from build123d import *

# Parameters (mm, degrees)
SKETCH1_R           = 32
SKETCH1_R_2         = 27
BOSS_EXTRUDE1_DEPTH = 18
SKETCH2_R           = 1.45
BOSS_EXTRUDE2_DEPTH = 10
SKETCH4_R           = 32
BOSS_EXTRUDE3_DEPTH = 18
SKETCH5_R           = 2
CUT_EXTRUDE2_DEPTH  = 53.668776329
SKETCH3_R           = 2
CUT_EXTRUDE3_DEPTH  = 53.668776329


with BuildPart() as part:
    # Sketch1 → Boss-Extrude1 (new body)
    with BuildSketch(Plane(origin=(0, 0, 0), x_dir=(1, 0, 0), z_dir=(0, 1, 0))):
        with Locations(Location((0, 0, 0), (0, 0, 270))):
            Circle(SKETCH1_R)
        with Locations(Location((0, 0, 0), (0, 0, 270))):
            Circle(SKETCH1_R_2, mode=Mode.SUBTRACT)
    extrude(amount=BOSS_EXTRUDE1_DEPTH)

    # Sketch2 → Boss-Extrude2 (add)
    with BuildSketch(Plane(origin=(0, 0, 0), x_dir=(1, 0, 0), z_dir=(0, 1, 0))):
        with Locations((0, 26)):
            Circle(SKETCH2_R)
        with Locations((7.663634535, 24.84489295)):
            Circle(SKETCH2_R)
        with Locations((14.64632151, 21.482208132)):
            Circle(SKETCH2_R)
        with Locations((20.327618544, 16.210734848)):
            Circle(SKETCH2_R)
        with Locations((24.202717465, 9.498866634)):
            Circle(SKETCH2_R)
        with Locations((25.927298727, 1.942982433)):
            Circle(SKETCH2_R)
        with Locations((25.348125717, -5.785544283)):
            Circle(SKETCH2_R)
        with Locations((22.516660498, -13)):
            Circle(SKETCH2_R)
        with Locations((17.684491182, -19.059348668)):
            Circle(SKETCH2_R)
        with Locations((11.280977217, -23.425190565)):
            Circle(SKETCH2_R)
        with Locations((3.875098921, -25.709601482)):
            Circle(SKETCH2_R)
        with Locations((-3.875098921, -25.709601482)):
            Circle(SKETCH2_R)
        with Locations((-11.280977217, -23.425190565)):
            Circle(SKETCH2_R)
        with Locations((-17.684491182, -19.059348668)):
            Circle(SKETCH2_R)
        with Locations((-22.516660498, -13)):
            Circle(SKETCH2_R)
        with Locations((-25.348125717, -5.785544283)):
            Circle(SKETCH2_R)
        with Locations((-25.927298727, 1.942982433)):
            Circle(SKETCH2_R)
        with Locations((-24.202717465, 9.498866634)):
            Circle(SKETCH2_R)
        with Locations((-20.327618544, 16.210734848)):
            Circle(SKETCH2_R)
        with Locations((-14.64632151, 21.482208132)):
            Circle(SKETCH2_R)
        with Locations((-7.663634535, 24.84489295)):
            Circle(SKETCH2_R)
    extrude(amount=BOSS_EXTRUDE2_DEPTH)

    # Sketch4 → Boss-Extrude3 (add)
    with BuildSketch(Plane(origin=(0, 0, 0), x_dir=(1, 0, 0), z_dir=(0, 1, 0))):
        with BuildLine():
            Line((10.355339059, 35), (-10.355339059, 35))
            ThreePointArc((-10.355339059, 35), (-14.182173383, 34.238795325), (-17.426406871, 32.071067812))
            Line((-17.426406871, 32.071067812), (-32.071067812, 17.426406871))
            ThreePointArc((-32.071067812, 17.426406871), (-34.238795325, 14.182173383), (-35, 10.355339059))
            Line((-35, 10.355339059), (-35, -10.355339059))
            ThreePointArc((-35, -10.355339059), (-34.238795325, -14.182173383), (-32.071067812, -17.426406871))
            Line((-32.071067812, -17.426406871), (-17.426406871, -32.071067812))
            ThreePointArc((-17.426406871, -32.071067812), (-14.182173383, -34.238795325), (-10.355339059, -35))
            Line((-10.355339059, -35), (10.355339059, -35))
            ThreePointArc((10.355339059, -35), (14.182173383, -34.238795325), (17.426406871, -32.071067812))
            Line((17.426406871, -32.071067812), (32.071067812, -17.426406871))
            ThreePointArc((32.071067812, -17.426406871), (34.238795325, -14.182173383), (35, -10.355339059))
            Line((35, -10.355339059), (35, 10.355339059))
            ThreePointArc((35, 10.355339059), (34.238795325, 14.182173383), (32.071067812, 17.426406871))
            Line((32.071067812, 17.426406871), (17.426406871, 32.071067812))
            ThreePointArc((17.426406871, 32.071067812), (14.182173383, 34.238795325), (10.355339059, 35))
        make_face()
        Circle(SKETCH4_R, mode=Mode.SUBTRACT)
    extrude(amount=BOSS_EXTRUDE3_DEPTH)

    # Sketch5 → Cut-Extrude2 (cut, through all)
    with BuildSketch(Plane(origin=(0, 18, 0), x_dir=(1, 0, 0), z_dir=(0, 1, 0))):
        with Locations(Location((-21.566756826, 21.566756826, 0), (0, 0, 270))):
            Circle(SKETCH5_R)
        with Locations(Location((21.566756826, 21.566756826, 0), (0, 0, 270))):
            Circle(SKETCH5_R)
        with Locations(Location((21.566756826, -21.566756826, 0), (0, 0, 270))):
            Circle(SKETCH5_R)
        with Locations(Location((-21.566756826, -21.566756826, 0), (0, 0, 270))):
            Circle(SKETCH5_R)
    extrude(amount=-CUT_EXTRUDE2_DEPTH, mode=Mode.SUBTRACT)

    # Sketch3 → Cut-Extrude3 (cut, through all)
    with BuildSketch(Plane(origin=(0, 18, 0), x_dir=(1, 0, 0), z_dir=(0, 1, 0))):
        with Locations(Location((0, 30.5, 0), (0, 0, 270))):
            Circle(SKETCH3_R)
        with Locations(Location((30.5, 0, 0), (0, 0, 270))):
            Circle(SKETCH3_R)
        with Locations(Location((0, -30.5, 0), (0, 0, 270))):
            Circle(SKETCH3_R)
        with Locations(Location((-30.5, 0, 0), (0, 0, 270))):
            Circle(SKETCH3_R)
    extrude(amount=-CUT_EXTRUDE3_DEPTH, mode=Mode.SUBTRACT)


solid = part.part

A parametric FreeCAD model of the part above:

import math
import FreeCAD as App
import Part
import Sketcher

V = App.Vector

doc = App.newDocument("Part")
body = doc.addObject("PartDesign::Body", "Body")

# Sketch on XZ plane
sketch1 = body.newObject("Sketcher::SketchObject", "Sketch")
sketch1.AttachmentSupport = (doc.getObject("XZ_Plane"), [""])
sketch1.MapMode = "FlatFace"
sketch1.addGeometry([
    Part.Circle(V(0, 0, 0), V(0, 0, 1), 32),
    Part.Circle(V(0, 0, 0), V(0, 0, 1), 27),
], False)
sketch1.addConstraint([
    Sketcher.Constraint("Coincident", 0, 3, -1, 1),
    Sketcher.Constraint("Coincident", 1, 3, -1, 1),
    Sketcher.Constraint("Diameter", 0, 64.0),
    Sketcher.Constraint("Diameter", 1, 54.0),
])
pad1 = body.newObject("PartDesign::Pad", "Pad")
pad1.Profile = sketch1
pad1.Length = 18
pad1.Reversed = True

# Sketch on XZ plane
sketch2 = body.newObject("Sketcher::SketchObject", "Sketch001")
sketch2.AttachmentSupport = (doc.getObject("XZ_Plane"), [""])
sketch2.MapMode = "FlatFace"
sketch2.addGeometry([
    Part.Circle(V(0, -26, 0), V(0, 0, 1), 1.4),  # 0
    Part.Circle(V(7.7, -24.8, 0), V(0, 0, 1), 1.4),  # 1
    Part.Circle(V(14.6, -21.5, 0), V(0, 0, 1), 1.4),  # 2
    Part.Circle(V(20.3, -16.2, 0), V(0, 0, 1), 1.4),  # 3
    Part.Circle(V(24.2, -9.5, 0), V(0, 0, 1), 1.4),  # 4
    Part.Circle(V(25.9, -1.9, 0), V(0, 0, 1), 1.4),  # 5
    Part.Circle(V(25.3, 5.8, 0), V(0, 0, 1), 1.4),  # 6
    Part.Circle(V(22.5, 13, 0), V(0, 0, 1), 1.4),  # 7
    Part.Circle(V(17.7, 19.1, 0), V(0, 0, 1), 1.4),  # 8
    Part.Circle(V(11.3, 23.4, 0), V(0, 0, 1), 1.4),  # 9
    Part.Circle(V(3.9, 25.7, 0), V(0, 0, 1), 1.4),  # 10
    Part.Circle(V(-3.9, 25.7, 0), V(0, 0, 1), 1.4),  # 11
    Part.Circle(V(-11.3, 23.4, 0), V(0, 0, 1), 1.4),  # 12
    Part.Circle(V(-17.7, 19.1, 0), V(0, 0, 1), 1.4),  # 13
    Part.Circle(V(-22.5, 13, 0), V(0, 0, 1), 1.4),  # 14
    Part.Circle(V(-25.3, 5.8, 0), V(0, 0, 1), 1.4),  # 15
    Part.Circle(V(-25.9, -1.9, 0), V(0, 0, 1), 1.4),  # 16
    Part.Circle(V(-24.2, -9.5, 0), V(0, 0, 1), 1.4),  # 17
    Part.Circle(V(-20.3, -16.2, 0), V(0, 0, 1), 1.4),  # 18
    Part.Circle(V(-14.6, -21.5, 0), V(0, 0, 1), 1.4),  # 19
    Part.Circle(V(-7.7, -24.8, 0), V(0, 0, 1), 1.4),  # 20
], False)
sketch2.addConstraint([
    Sketcher.Constraint("Equal", 0, 1),
    Sketcher.Constraint("Equal", 1, 2),
    Sketcher.Constraint("Equal", 2, 3),
    Sketcher.Constraint("Equal", 3, 4),
    Sketcher.Constraint("Equal", 4, 5),
    Sketcher.Constraint("Equal", 5, 6),
    Sketcher.Constraint("Equal", 6, 7),
    Sketcher.Constraint("Equal", 7, 8),
    Sketcher.Constraint("Equal", 8, 9),
    Sketcher.Constraint("Equal", 9, 10),
    Sketcher.Constraint("Equal", 10, 11),
    Sketcher.Constraint("Equal", 11, 12),
    Sketcher.Constraint("Equal", 12, 13),
    Sketcher.Constraint("Equal", 13, 14),
    Sketcher.Constraint("Equal", 14, 15),
    Sketcher.Constraint("Equal", 15, 16),
    Sketcher.Constraint("Equal", 16, 17),
    Sketcher.Constraint("Equal", 17, 18),
    Sketcher.Constraint("Equal", 18, 19),
    Sketcher.Constraint("Equal", 19, 20),
    Sketcher.Constraint("Symmetric", 10, 3, 11, 3, -2),
    Sketcher.Constraint("Symmetric", 9, 3, 12, 3, -2),
    Sketcher.Constraint("Symmetric", 8, 3, 13, 3, -2),
    Sketcher.Constraint("Symmetric", 7, 3, 14, 3, -2),
    Sketcher.Constraint("Symmetric", 6, 3, 15, 3, -2),
    Sketcher.Constraint("Symmetric", 5, 3, 16, 3, -2),
    Sketcher.Constraint("Symmetric", 4, 3, 17, 3, -2),
    Sketcher.Constraint("Symmetric", 3, 3, 18, 3, -2),
    Sketcher.Constraint("Symmetric", 2, 3, 19, 3, -2),
    Sketcher.Constraint("Symmetric", 1, 3, 20, 3, -2),
    Sketcher.Constraint("PointOnObject", 0, 3, -2),
    Sketcher.Constraint("Diameter", 0, 2.9),
    Sketcher.Constraint("DistanceY", 0, 3, -1, 1, 26.0),
    Sketcher.Constraint("DistanceY", -1, 1, 7, 3, 13.0),
    Sketcher.Constraint("DistanceX", -1, 1, 5, 3, 25.927299),
    Sketcher.Constraint("DistanceX", -1, 1, 10, 3, 3.875099),
    Sketcher.Constraint("DistanceY", -1, 1, 10, 3, 25.709601),
    Sketcher.Constraint("DistanceX", 3, 3, 4, 3, 3.875099),
    Sketcher.Constraint("DistanceX", -1, 1, 2, 3, 14.646322),
    Sketcher.Constraint("DistanceY", 2, 3, -1, 1, 21.482208),
    Sketcher.Constraint("DistanceX", -1, 1, 3, 3, 20.327619),
    Sketcher.Constraint("DistanceX", -1, 1, 7, 3, 22.51666),
    Sketcher.Constraint("DistanceX", -1, 1, 8, 3, 17.684491),
    Sketcher.Constraint("DistanceY", -1, 1, 8, 3, 19.059349),
    Sketcher.Constraint("DistanceY", -1, 1, 9, 3, 23.425191),
    Sketcher.Constraint("DistanceY", 1, 3, 3, 3, 8.634158),
    Sketcher.Constraint("DistanceY", 3, 3, 4, 3, 6.711868),
    Sketcher.Constraint("DistanceY", 2, 3, 4, 3, 11.983341),
    Sketcher.Constraint("DistanceY", 1, 3, 5, 3, 22.901911),
    Sketcher.Constraint("DistanceX", 4, 3, 6, 3, 1.145408),
    Sketcher.Constraint("DistanceY", 4, 3, 6, 3, 15.284411),
    Sketcher.Constraint("DistanceX", 1, 3, 6, 3, 17.684491),
    Sketcher.Constraint("DistanceX", 9, 3, 6, 3, 14.067148),
])
pad2 = body.newObject("PartDesign::Pad", "Pad001")
pad2.Profile = sketch2
pad2.Length = 10
pad2.Reversed = True

# Sketch on XZ plane
sketch3 = body.newObject("Sketcher::SketchObject", "Sketch002")
sketch3.AttachmentSupport = (doc.getObject("XZ_Plane"), [""])
sketch3.MapMode = "FlatFace"
sketch3.addGeometry([
    Part.LineSegment(V(10, -35, 0), V(-10, -35, 0)),  # 0
    Part.ArcOfCircle(Part.Circle(V(-10, -25, 0), V(0, 0, 1), 10), math.radians(-135), math.radians(-90)),  # 1
    Part.LineSegment(V(-17, -32, 0), V(-32, -17, 0)),  # 2
    Part.ArcOfCircle(Part.Circle(V(-25, -10, 0), V(0, 0, 1), 10), math.radians(180), math.radians(225)),  # 3
    Part.LineSegment(V(-35, -10, 0), V(-35, 10, 0)),  # 4
    Part.ArcOfCircle(Part.Circle(V(-25, 10, 0), V(0, 0, 1), 10), math.radians(135), math.radians(180)),  # 5
    Part.LineSegment(V(-32, 17, 0), V(-17, 32, 0)),  # 6
    Part.ArcOfCircle(Part.Circle(V(-10, 25, 0), V(0, 0, 1), 10), math.radians(90), math.radians(135)),  # 7
    Part.LineSegment(V(-10, 35, 0), V(10, 35, 0)),  # 8
    Part.ArcOfCircle(Part.Circle(V(10, 25, 0), V(0, 0, 1), 10), math.radians(45), math.radians(90)),  # 9
    Part.LineSegment(V(17, 32, 0), V(32, 17, 0)),  # 10
    Part.ArcOfCircle(Part.Circle(V(25, 10, 0), V(0, 0, 1), 10), math.radians(0), math.radians(45)),  # 11
    Part.LineSegment(V(35, 10, 0), V(35, -10, 0)),  # 12
    Part.ArcOfCircle(Part.Circle(V(25, -10, 0), V(0, 0, 1), 10), math.radians(-45), math.radians(0)),  # 13
    Part.LineSegment(V(32, -17, 0), V(17, -32, 0)),  # 14
    Part.ArcOfCircle(Part.Circle(V(10, -25, 0), V(0, 0, 1), 10), math.radians(-90), math.radians(-45)),  # 15
    Part.Circle(V(0, 0, 0), V(0, 0, 1), 32),  # 16
], False)
sketch3.addConstraint([
    Sketcher.Constraint("Tangent", 0, 2, 1, 2),
    Sketcher.Constraint("Tangent", 1, 1, 2, 1),
    Sketcher.Constraint("Tangent", 2, 2, 3, 2),
    Sketcher.Constraint("Tangent", 3, 1, 4, 1),
    Sketcher.Constraint("Tangent", 4, 2, 5, 2),
    Sketcher.Constraint("Tangent", 5, 1, 6, 1),
    Sketcher.Constraint("Tangent", 6, 2, 7, 2),
    Sketcher.Constraint("Tangent", 7, 1, 8, 1),
    Sketcher.Constraint("Tangent", 8, 2, 9, 2),
    Sketcher.Constraint("Tangent", 9, 1, 10, 1),
    Sketcher.Constraint("Tangent", 10, 2, 11, 2),
    Sketcher.Constraint("Tangent", 11, 1, 12, 1),
    Sketcher.Constraint("Tangent", 12, 2, 13, 2),
    Sketcher.Constraint("Tangent", 13, 1, 14, 1),
    Sketcher.Constraint("Tangent", 14, 2, 15, 2),
    Sketcher.Constraint("Tangent", 15, 1, 0, 1),
    Sketcher.Constraint("Horizontal", 0),
    Sketcher.Constraint("Vertical", 4),
    Sketcher.Constraint("Horizontal", 8),
    Sketcher.Constraint("Vertical", 12),
    Sketcher.Constraint("Coincident", 16, 3, -1, 1),
    Sketcher.Constraint("Equal", 1, 3),
    Sketcher.Constraint("Equal", 3, 5),
    Sketcher.Constraint("Equal", 5, 7),
    Sketcher.Constraint("Equal", 7, 9),
    Sketcher.Constraint("Equal", 9, 11),
    Sketcher.Constraint("Equal", 11, 13),
    Sketcher.Constraint("Equal", 13, 15),
    Sketcher.Constraint("Symmetric", 1, 3, 9, 3, -1, 1),
    Sketcher.Constraint("Symmetric", 3, 3, 11, 3, -1, 1),
    Sketcher.Constraint("Symmetric", 5, 1, 13, 1, -1, 1),
    Sketcher.Constraint("Symmetric", 6, 2, 9, 1, -2),
    Sketcher.Constraint("Perpendicular", 2, 6),
    Sketcher.Constraint("Equal", 8, 4),
    Sketcher.Constraint("Diameter", 16, 64.0),
    Sketcher.Constraint("Radius", 1, 10.0),
    Sketcher.Constraint("DistanceY", 1, 3, -1, 1, 25.0),
    Sketcher.Constraint("DistanceX", 0, 2, 0, 1, 20.710678),
])
pad3 = body.newObject("PartDesign::Pad", "Pad002")
pad3.Profile = sketch3
pad3.Length = 18
pad3.Reversed = True

# Sketch on XZ plane
sketch4 = body.newObject("Sketcher::SketchObject", "Sketch003")
sketch4.AttachmentSupport = (doc.getObject("XZ_Plane"), [""])
sketch4.MapMode = "FlatFace"
sketch4.AttachmentOffset = App.Placement(V(0, 0, -18), App.Rotation())
sketch4.addGeometry([
    Part.Circle(V(-21.6, -21.6, 0), V(0, 0, 1), 2),
    Part.Circle(V(21.6, -21.6, 0), V(0, 0, 1), 2),
    Part.Circle(V(21.6, 21.6, 0), V(0, 0, 1), 2),
    Part.Circle(V(-21.6, 21.6, 0), V(0, 0, 1), 2),
], False)
sketch4.addConstraint([
    Sketcher.Constraint("Equal", 0, 1),
    Sketcher.Constraint("Equal", 1, 2),
    Sketcher.Constraint("Equal", 2, 3),
    Sketcher.Constraint("Symmetric", 0, 3, 2, 3, -1, 1),
    Sketcher.Constraint("Symmetric", 1, 3, 3, 3, -1, 1),
    Sketcher.Constraint("Symmetric", 0, 3, 1, 3, -2),
    Sketcher.Constraint("Diameter", 0, 4.0),
    Sketcher.Constraint("DistanceX", 0, 3, -1, 1, 21.566757),
    Sketcher.Constraint("DistanceY", 0, 3, -1, 1, 21.566757),
])
pocket1 = body.newObject("PartDesign::Pocket", "Pocket")
pocket1.Profile = sketch4
pocket1.Type = "ThroughAll"
pocket1.Reversed = True

# Sketch on XZ plane
sketch5 = body.newObject("Sketcher::SketchObject", "Sketch004")
sketch5.AttachmentSupport = (doc.getObject("XZ_Plane"), [""])
sketch5.MapMode = "FlatFace"
sketch5.AttachmentOffset = App.Placement(V(0, 0, -18), App.Rotation())
sketch5.addGeometry([
    Part.Circle(V(0, -30.5, 0), V(0, 0, 1), 2),
    Part.Circle(V(30.5, 0, 0), V(0, 0, 1), 2),
    Part.Circle(V(0, 30.5, 0), V(0, 0, 1), 2),
    Part.Circle(V(-30.5, 0, 0), V(0, 0, 1), 2),
], False)
sketch5.addConstraint([
    Sketcher.Constraint("Equal", 0, 1),
    Sketcher.Constraint("Equal", 1, 2),
    Sketcher.Constraint("Equal", 2, 3),
    Sketcher.Constraint("Symmetric", 0, 3, 2, 3, -1, 1),
    Sketcher.Constraint("Symmetric", 1, 3, 3, 3, -1, 1),
    Sketcher.Constraint("PointOnObject", 0, 3, -2),
    Sketcher.Constraint("PointOnObject", 1, 3, -1),
    Sketcher.Constraint("Diameter", 0, 4.0),
    Sketcher.Constraint("DistanceY", 0, 3, 2, 3, 61.0),
    Sketcher.Constraint("DistanceX", 3, 3, 1, 3, 61.0),
])
pocket2 = body.newObject("PartDesign::Pocket", "Pocket001")
pocket2.Profile = sketch5
pocket2.Type = "ThroughAll"
pocket2.Reversed = True

doc.recompute()
